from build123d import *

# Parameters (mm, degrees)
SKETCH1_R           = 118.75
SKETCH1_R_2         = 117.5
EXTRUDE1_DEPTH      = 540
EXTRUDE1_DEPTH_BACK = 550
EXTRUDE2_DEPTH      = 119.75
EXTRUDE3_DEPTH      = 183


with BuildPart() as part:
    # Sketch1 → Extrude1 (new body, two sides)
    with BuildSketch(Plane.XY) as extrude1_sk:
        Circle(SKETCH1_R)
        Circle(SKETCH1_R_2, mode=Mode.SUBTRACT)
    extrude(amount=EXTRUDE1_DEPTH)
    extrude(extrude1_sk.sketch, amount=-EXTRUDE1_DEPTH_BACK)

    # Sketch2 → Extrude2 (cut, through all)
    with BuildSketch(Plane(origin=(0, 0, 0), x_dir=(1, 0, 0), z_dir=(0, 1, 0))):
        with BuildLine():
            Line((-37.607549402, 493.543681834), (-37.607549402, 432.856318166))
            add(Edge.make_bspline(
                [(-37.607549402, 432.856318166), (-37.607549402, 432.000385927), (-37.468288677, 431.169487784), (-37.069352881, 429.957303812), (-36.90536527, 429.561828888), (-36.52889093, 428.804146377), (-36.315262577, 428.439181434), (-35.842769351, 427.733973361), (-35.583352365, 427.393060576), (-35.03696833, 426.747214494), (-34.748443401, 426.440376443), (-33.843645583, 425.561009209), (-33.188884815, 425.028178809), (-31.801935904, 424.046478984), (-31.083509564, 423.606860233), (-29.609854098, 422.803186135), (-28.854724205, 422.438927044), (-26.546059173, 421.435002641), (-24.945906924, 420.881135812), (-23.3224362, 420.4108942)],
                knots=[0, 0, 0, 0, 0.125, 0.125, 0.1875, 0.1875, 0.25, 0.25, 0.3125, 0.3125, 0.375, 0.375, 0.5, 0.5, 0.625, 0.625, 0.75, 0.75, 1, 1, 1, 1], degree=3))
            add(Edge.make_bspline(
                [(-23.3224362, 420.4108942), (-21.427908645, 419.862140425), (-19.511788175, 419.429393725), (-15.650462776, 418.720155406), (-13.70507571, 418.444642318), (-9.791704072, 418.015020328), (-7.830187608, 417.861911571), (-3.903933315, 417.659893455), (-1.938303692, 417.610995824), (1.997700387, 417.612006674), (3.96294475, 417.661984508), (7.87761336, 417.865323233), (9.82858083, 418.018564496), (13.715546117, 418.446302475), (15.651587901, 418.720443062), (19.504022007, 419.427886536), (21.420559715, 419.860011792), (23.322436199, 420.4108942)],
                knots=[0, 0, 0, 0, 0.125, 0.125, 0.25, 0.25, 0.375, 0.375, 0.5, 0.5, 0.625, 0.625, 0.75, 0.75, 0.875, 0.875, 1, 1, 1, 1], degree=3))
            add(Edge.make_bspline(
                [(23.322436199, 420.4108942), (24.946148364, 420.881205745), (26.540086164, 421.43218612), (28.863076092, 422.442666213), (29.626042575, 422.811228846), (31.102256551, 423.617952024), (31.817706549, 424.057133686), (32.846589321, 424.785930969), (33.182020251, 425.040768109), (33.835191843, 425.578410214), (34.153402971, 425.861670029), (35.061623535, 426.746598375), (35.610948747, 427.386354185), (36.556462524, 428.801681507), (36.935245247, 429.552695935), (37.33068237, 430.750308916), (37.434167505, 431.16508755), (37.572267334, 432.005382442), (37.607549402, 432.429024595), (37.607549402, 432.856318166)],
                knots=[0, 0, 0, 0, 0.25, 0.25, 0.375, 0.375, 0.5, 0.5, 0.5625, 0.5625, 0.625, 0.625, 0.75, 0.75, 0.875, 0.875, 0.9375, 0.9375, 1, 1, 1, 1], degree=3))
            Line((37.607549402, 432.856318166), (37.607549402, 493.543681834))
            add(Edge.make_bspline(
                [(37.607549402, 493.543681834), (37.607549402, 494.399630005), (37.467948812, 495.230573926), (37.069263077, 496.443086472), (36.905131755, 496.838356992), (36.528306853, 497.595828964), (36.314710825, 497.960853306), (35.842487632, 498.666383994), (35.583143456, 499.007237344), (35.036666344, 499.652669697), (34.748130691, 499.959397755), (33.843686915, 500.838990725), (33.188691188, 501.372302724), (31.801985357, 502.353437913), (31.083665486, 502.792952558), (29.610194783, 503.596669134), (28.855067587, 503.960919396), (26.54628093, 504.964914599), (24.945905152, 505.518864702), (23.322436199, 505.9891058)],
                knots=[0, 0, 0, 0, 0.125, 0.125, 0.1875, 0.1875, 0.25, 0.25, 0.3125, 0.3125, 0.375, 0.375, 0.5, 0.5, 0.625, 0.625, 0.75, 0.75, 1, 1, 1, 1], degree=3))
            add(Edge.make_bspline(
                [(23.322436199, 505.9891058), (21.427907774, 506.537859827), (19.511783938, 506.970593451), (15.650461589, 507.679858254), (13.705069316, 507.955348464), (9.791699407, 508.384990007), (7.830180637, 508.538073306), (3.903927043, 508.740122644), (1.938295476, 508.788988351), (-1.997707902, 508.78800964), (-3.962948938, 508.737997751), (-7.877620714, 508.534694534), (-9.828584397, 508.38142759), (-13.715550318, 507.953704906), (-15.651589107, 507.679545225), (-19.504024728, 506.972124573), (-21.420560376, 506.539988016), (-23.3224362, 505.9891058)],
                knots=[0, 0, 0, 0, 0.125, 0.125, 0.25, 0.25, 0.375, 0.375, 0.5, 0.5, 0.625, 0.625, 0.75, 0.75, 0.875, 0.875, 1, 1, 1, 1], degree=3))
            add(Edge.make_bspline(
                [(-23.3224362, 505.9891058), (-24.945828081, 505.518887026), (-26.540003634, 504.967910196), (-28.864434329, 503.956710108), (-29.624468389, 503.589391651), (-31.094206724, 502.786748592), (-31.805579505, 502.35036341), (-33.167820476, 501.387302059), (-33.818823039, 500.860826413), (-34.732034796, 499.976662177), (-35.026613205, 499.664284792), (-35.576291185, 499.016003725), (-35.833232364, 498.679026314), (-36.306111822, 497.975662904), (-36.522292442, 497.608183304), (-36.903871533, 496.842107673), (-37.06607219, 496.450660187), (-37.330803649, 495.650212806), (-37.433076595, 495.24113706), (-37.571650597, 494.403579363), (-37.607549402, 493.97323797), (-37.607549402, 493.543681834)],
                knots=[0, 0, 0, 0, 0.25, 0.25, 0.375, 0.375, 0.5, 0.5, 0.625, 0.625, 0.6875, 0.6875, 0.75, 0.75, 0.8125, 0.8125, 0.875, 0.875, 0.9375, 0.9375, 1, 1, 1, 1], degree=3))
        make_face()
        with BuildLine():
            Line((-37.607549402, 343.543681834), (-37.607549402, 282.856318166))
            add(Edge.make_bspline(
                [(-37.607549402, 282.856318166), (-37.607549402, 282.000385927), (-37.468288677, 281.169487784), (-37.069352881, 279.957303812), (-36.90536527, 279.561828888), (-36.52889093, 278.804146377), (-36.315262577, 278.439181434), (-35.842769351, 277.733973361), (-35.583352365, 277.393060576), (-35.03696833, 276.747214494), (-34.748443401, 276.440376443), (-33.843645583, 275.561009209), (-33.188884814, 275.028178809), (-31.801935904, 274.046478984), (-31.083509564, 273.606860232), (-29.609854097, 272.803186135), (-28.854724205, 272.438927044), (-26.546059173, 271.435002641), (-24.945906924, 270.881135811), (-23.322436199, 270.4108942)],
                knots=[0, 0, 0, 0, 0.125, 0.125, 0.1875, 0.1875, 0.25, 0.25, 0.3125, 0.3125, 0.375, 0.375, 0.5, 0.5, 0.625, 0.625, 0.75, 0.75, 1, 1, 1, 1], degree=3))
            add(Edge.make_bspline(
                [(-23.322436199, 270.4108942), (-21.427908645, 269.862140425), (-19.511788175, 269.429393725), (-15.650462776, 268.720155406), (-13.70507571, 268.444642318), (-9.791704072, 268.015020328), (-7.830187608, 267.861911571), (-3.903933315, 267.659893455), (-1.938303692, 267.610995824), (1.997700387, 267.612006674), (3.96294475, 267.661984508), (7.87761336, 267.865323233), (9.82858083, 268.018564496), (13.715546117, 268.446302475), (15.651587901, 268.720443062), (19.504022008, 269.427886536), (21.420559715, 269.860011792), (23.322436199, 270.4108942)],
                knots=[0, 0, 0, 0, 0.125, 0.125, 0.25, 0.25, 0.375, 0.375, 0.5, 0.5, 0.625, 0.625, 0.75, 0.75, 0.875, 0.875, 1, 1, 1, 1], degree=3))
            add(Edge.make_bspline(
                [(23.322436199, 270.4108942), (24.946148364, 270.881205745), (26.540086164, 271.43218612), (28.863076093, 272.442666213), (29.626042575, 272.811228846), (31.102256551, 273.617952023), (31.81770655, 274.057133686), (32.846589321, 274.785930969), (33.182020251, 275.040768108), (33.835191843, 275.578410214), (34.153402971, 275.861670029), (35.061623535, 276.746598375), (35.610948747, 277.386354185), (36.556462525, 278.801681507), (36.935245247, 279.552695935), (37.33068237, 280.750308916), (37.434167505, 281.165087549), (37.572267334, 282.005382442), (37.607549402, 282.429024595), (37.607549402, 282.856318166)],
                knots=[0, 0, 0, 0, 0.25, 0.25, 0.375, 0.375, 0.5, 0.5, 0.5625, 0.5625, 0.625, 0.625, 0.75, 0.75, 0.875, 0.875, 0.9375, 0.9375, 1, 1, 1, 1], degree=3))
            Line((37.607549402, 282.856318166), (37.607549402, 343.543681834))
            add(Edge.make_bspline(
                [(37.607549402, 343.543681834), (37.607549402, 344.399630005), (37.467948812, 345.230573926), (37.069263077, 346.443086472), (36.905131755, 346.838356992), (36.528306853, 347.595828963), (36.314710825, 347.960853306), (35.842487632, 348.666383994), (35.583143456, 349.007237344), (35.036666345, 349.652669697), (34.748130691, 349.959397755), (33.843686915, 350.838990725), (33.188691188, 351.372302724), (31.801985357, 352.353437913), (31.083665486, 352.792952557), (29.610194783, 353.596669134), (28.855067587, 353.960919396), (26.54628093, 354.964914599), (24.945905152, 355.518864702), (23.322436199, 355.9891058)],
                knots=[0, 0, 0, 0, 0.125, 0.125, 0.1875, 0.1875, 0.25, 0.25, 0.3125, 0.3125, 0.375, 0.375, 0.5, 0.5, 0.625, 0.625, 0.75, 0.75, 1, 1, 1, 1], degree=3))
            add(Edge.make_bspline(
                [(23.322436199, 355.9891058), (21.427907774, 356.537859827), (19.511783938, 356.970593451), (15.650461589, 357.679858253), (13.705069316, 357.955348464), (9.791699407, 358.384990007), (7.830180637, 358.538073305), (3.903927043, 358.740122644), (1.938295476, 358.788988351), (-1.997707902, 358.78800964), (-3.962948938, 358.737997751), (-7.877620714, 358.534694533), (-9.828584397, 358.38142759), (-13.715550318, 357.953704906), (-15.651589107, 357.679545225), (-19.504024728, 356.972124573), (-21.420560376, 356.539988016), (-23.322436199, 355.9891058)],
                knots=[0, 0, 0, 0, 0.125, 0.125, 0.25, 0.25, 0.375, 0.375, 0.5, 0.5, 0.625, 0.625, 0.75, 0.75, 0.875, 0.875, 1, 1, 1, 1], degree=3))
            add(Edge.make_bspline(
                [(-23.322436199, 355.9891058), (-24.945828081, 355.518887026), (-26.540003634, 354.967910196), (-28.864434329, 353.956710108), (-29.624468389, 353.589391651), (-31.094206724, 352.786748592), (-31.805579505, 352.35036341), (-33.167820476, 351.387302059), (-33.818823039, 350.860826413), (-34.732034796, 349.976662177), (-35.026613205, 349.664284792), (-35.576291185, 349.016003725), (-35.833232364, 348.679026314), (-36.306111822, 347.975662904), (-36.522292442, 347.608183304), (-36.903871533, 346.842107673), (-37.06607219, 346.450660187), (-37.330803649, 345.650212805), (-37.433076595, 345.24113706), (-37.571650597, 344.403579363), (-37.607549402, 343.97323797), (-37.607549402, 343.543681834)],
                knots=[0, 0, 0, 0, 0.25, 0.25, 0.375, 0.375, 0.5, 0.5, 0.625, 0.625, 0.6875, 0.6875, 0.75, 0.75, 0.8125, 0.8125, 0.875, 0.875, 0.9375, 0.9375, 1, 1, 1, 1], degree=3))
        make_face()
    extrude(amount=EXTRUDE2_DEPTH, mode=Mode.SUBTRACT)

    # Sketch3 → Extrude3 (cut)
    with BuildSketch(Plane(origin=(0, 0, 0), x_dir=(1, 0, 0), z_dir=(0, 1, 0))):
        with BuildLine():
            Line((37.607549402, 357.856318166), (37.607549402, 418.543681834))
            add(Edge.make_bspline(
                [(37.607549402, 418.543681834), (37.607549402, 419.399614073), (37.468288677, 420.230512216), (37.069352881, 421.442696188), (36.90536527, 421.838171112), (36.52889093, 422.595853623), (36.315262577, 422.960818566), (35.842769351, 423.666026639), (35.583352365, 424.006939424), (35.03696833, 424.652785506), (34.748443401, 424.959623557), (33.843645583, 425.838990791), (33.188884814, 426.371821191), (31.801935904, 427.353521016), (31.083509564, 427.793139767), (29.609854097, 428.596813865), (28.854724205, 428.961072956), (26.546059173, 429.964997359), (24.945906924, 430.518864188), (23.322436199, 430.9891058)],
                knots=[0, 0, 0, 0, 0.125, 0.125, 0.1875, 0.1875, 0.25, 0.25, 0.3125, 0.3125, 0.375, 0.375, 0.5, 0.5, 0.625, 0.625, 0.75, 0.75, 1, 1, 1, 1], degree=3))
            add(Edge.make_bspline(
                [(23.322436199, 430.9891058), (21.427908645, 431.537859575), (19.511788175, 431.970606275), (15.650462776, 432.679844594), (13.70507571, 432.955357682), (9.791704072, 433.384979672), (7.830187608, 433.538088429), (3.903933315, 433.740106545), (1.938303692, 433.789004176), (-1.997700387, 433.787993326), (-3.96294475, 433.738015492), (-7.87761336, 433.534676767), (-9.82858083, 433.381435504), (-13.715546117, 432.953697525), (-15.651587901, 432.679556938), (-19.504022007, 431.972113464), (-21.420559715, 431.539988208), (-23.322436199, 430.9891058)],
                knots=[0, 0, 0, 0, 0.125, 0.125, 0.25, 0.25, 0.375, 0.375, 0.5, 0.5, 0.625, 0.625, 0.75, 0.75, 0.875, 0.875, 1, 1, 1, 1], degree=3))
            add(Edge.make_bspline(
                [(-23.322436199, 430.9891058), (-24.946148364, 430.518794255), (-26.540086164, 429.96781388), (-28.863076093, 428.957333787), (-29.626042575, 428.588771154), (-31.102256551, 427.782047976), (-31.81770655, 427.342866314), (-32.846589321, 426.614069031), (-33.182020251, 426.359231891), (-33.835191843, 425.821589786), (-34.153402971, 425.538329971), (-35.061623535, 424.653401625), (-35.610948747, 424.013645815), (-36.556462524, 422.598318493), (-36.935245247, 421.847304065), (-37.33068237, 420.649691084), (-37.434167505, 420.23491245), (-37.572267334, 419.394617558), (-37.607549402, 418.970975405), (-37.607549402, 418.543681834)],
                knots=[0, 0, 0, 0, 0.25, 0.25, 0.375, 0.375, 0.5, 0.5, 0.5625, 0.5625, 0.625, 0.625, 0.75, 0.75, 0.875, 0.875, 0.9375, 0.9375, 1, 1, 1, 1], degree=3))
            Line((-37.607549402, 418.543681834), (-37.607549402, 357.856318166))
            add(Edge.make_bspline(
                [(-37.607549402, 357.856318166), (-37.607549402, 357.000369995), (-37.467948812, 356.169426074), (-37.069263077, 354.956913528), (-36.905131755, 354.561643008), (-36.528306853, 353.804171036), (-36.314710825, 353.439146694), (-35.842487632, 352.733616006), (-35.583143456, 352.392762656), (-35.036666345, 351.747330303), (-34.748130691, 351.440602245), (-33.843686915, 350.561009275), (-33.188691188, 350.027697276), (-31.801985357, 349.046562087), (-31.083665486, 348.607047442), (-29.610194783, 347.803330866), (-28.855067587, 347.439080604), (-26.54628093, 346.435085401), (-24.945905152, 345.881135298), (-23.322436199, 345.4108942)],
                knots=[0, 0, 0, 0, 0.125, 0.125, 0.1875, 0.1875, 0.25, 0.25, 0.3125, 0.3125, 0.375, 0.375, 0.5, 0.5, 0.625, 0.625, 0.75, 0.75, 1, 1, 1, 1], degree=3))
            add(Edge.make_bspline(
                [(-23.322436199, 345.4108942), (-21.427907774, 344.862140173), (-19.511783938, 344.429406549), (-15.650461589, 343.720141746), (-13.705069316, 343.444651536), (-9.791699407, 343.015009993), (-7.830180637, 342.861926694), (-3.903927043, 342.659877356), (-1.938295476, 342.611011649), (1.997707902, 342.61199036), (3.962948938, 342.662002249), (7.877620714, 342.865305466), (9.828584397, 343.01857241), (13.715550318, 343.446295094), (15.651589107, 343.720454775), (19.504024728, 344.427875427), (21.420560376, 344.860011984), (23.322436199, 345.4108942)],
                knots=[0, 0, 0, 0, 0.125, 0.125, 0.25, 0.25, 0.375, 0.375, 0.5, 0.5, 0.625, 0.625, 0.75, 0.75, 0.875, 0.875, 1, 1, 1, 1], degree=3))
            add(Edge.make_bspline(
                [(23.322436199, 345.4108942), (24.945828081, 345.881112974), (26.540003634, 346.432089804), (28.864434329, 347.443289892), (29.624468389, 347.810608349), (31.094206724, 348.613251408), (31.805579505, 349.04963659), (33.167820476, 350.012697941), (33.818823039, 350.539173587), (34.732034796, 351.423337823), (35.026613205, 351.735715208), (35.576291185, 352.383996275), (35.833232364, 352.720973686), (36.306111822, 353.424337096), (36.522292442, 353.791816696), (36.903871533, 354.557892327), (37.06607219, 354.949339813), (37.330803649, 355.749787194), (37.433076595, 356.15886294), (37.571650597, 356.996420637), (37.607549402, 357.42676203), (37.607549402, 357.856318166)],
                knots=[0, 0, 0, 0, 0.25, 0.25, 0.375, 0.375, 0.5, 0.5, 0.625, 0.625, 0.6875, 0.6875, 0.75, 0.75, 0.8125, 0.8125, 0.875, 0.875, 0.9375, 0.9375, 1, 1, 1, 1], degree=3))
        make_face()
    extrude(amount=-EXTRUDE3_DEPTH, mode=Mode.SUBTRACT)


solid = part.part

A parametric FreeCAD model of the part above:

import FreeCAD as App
import Part
import Sketcher

V = App.Vector

doc = App.newDocument("Part")
body = doc.addObject("PartDesign::Body", "Body")

sketch1 = body.newObject("Sketcher::SketchObject", "Sketch")
sketch1.AttachmentSupport = (doc.getObject("XY_Plane"), [""])
sketch1.MapMode = "FlatFace"
sketch1.addGeometry([
    Part.Circle(V(0, 0, 0), V(0, 0, 1), 119),
    Part.Circle(V(0, 0, 0), V(0, 0, 1), 118),
], False)
sketch1.addConstraint([
    Sketcher.Constraint("Coincident", 0, 3, -1, 1),
    Sketcher.Constraint("Coincident", 1, 3, -1, 1),
    Sketcher.Constraint("Diameter", 1, 235.0),
    Sketcher.Constraint("Diameter", 0, 237.5),
])
pad1 = body.newObject("PartDesign::Pad", "Pad")
pad1.Profile = sketch1
pad1.Type = "TwoLengths"
pad1.Length = 540
pad1.Length2 = 550

sketch2 = body.newObject("Sketcher::SketchObject", "Sketch001")
sketch2.AttachmentSupport = (doc.getObject("XZ_Plane"), [""])
sketch2.MapMode = "FlatFace"
sketch2.addGeometry([
    Part.LineSegment(V(-37.607549, -493.543682, 0), V(-37.607549, -432.856318, 0)),
    Part.BSplineCurve([V(-37.607549, -432.856318, 0), V(-37.607549, -432.000386, 0), V(-37.468289, -431.169488, 0), V(-37.069353, -429.957304, 0), V(-36.905365, -429.561829, 0), V(-36.528891, -428.804146, 0), V(-36.315263, -428.439181, 0), V(-35.842769, -427.733973, 0), V(-35.583352, -427.393061, 0), V(-35.036968, -426.747214, 0), V(-34.748443, -426.440376, 0), V(-33.843646, -425.561009, 0), V(-33.188885, -425.028179, 0), V(-31.801936, -424.046479, 0), V(-31.08351, -423.60686, 0), V(-29.609854, -422.803186, 0), V(-28.854724, -422.438927, 0), V(-26.546059, -421.435003, 0), V(-24.945907, -420.881136, 0), V(-23.322436, -420.410894, 0)], [4, 2, 2, 2, 2, 2, 2, 2, 2, 4], [0, 0.125, 0.1875, 0.25, 0.3125, 0.375, 0.5, 0.625, 0.75, 1], False, 3, [1, 1, 1, 1, 1, 1, 1, 1, 1, 1, 1, 1, 1, 1, 1, 1, 1, 1, 1, 1], False),
    Part.BSplineCurve([V(-23.322436, -420.410894, 0), V(-21.427909, -419.86214, 0), V(-19.511788, -419.429394, 0), V(-15.650463, -418.720155, 0), V(-13.705076, -418.444642, 0), V(-9.791704, -418.01502, 0), V(-7.830188, -417.861912, 0), V(-3.903933, -417.659893, 0), V(-1.938304, -417.610996, 0), V(1.9977, -417.612007, 0), V(3.962945, -417.661985, 0), V(7.877613, -417.865323, 0), V(9.828581, -418.018564, 0), V(13.715546, -418.446302, 0), V(15.651588, -418.720443, 0), V(19.504022, -419.427887, 0), V(21.42056, -419.860012, 0), V(23.322436, -420.410894, 0)], [4, 2, 2, 2, 2, 2, 2, 2, 4], [0, 0.125, 0.25, 0.375, 0.5, 0.625, 0.75, 0.875, 1], False, 3, [1, 1, 1, 1, 1, 1, 1, 1, 1, 1, 1, 1, 1, 1, 1, 1, 1, 1], False),
    Part.BSplineCurve([V(23.322436, -420.410894, 0), V(24.946148, -420.881206, 0), V(26.540086, -421.432186, 0), V(28.863076, -422.442666, 0), V(29.626043, -422.811229, 0), V(31.102257, -423.617952, 0), V(31.817707, -424.057134, 0), V(32.846589, -424.785931, 0), V(33.18202, -425.040768, 0), V(33.835192, -425.57841, 0), V(34.153403, -425.86167, 0), V(35.061624, -426.746598, 0), V(35.610949, -427.386354, 0), V(36.556463, -428.801682, 0), V(36.935245, -429.552696, 0), V(37.330682, -430.750309, 0), V(37.434168, -431.165088, 0), V(37.572267, -432.005382, 0), V(37.607549, -432.429025, 0), V(37.607549, -432.856318, 0)], [4, 2, 2, 2, 2, 2, 2, 2, 2, 4], [0, 0.25, 0.375, 0.5, 0.5625, 0.625, 0.75, 0.875, 0.9375, 1], False, 3, [1, 1, 1, 1, 1, 1, 1, 1, 1, 1, 1, 1, 1, 1, 1, 1, 1, 1, 1, 1], False),
    Part.LineSegment(V(37.607549, -432.856318, 0), V(37.607549, -493.543682, 0)),
    Part.BSplineCurve([V(37.607549, -493.543682, 0), V(37.607549, -494.39963, 0), V(37.467949, -495.230574, 0), V(37.069263, -496.443086, 0), V(36.905132, -496.838357, 0), V(36.528307, -497.595829, 0), V(36.314711, -497.960853, 0), V(35.842488, -498.666384, 0), V(35.583143, -499.007237, 0), V(35.036666, -499.65267, 0), V(34.748131, -499.959398, 0), V(33.843687, -500.838991, 0), V(33.188691, -501.372303, 0), V(31.801985, -502.353438, 0), V(31.083665, -502.792953, 0), V(29.610195, -503.596669, 0), V(28.855068, -503.960919, 0), V(26.546281, -504.964915, 0), V(24.945905, -505.518865, 0), V(23.322436, -505.989106, 0)], [4, 2, 2, 2, 2, 2, 2, 2, 2, 4], [0, 0.125, 0.1875, 0.25, 0.3125, 0.375, 0.5, 0.625, 0.75, 1], False, 3, [1, 1, 1, 1, 1, 1, 1, 1, 1, 1, 1, 1, 1, 1, 1, 1, 1, 1, 1, 1], False),
    Part.BSplineCurve([V(23.322436, -505.989106, 0), V(21.427908, -506.53786, 0), V(19.511784, -506.970593, 0), V(15.650462, -507.679858, 0), V(13.705069, -507.955348, 0), V(9.791699, -508.38499, 0), V(7.830181, -508.538073, 0), V(3.903927, -508.740123, 0), V(1.938295, -508.788988, 0), V(-1.997708, -508.78801, 0), V(-3.962949, -508.737998, 0), V(-7.877621, -508.534695, 0), V(-9.828584, -508.381428, 0), V(-13.71555, -507.953705, 0), V(-15.651589, -507.679545, 0), V(-19.504025, -506.972125, 0), V(-21.42056, -506.539988, 0), V(-23.322436, -505.989106, 0)], [4, 2, 2, 2, 2, 2, 2, 2, 4], [0, 0.125, 0.25, 0.375, 0.5, 0.625, 0.75, 0.875, 1], False, 3, [1, 1, 1, 1, 1, 1, 1, 1, 1, 1, 1, 1, 1, 1, 1, 1, 1, 1], False),
    Part.BSplineCurve([V(-23.322436, -505.989106, 0), V(-24.945828, -505.518887, 0), V(-26.540004, -504.96791, 0), V(-28.864434, -503.95671, 0), V(-29.624468, -503.589392, 0), V(-31.094207, -502.786749, 0), V(-31.80558, -502.350363, 0), V(-33.16782, -501.387302, 0), V(-33.818823, -500.860826, 0), V(-34.732035, -499.976662, 0), V(-35.026613, -499.664285, 0), V(-35.576291, -499.016004, 0), V(-35.833232, -498.679026, 0), V(-36.306112, -497.975663, 0), V(-36.522292, -497.608183, 0), V(-36.903872, -496.842108, 0), V(-37.066072, -496.45066, 0), V(-37.330804, -495.650213, 0), V(-37.433077, -495.241137, 0), V(-37.571651, -494.403579, 0), V(-37.607549, -493.973238, 0), V(-37.607549, -493.543682, 0)], [4, 2, 2, 2, 2, 2, 2, 2, 2, 2, 4], [0, 0.25, 0.375, 0.5, 0.625, 0.6875, 0.75, 0.8125, 0.875, 0.9375, 1], False, 3, [1, 1, 1, 1, 1, 1, 1, 1, 1, 1, 1, 1, 1, 1, 1, 1, 1, 1, 1, 1, 1, 1], False),
    Part.LineSegment(V(-37.607549, -343.543682, 0), V(-37.607549, -282.856318, 0)),
    Part.BSplineCurve([V(-37.607549, -282.856318, 0), V(-37.607549, -282.000386, 0), V(-37.468289, -281.169488, 0), V(-37.069353, -279.957304, 0), V(-36.905365, -279.561829, 0), V(-36.528891, -278.804146, 0), V(-36.315263, -278.439181, 0), V(-35.842769, -277.733973, 0), V(-35.583352, -277.393061, 0), V(-35.036968, -276.747214, 0), V(-34.748443, -276.440376, 0), V(-33.843646, -275.561009, 0), V(-33.188885, -275.028179, 0), V(-31.801936, -274.046479, 0), V(-31.08351, -273.60686, 0), V(-29.609854, -272.803186, 0), V(-28.854724, -272.438927, 0), V(-26.546059, -271.435003, 0), V(-24.945907, -270.881136, 0), V(-23.322436, -270.410894, 0)], [4, 2, 2, 2, 2, 2, 2, 2, 2, 4], [0, 0.125, 0.1875, 0.25, 0.3125, 0.375, 0.5, 0.625, 0.75, 1], False, 3, [1, 1, 1, 1, 1, 1, 1, 1, 1, 1, 1, 1, 1, 1, 1, 1, 1, 1, 1, 1], False),
    Part.BSplineCurve([V(-23.322436, -270.410894, 0), V(-21.427909, -269.86214, 0), V(-19.511788, -269.429394, 0), V(-15.650463, -268.720155, 0), V(-13.705076, -268.444642, 0), V(-9.791704, -268.01502, 0), V(-7.830188, -267.861912, 0), V(-3.903933, -267.659893, 0), V(-1.938304, -267.610996, 0), V(1.9977, -267.612007, 0), V(3.962945, -267.661985, 0), V(7.877613, -267.865323, 0), V(9.828581, -268.018564, 0), V(13.715546, -268.446302, 0), V(15.651588, -268.720443, 0), V(19.504022, -269.427887, 0), V(21.42056, -269.860012, 0), V(23.322436, -270.410894, 0)], [4, 2, 2, 2, 2, 2, 2, 2, 4], [0, 0.125, 0.25, 0.375, 0.5, 0.625, 0.75, 0.875, 1], False, 3, [1, 1, 1, 1, 1, 1, 1, 1, 1, 1, 1, 1, 1, 1, 1, 1, 1, 1], False),
    Part.BSplineCurve([V(23.322436, -270.410894, 0), V(24.946148, -270.881206, 0), V(26.540086, -271.432186, 0), V(28.863076, -272.442666, 0), V(29.626043, -272.811229, 0), V(31.102257, -273.617952, 0), V(31.817707, -274.057134, 0), V(32.846589, -274.785931, 0), V(33.18202, -275.040768, 0), V(33.835192, -275.57841, 0), V(34.153403, -275.86167, 0), V(35.061624, -276.746598, 0), V(35.610949, -277.386354, 0), V(36.556463, -278.801682, 0), V(36.935245, -279.552696, 0), V(37.330682, -280.750309, 0), V(37.434168, -281.165088, 0), V(37.572267, -282.005382, 0), V(37.607549, -282.429025, 0), V(37.607549, -282.856318, 0)], [4, 2, 2, 2, 2, 2, 2, 2, 2, 4], [0, 0.25, 0.375, 0.5, 0.5625, 0.625, 0.75, 0.875, 0.9375, 1], False, 3, [1, 1, 1, 1, 1, 1, 1, 1, 1, 1, 1, 1, 1, 1, 1, 1, 1, 1, 1, 1], False),
    Part.LineSegment(V(37.607549, -282.856318, 0), V(37.607549, -343.543682, 0)),
    Part.BSplineCurve([V(37.607549, -343.543682, 0), V(37.607549, -344.39963, 0), V(37.467949, -345.230574, 0), V(37.069263, -346.443086, 0), V(36.905132, -346.838357, 0), V(36.528307, -347.595829, 0), V(36.314711, -347.960853, 0), V(35.842488, -348.666384, 0), V(35.583143, -349.007237, 0), V(35.036666, -349.65267, 0), V(34.748131, -349.959398, 0), V(33.843687, -350.838991, 0), V(33.188691, -351.372303, 0), V(31.801985, -352.353438, 0), V(31.083665, -352.792953, 0), V(29.610195, -353.596669, 0), V(28.855068, -353.960919, 0), V(26.546281, -354.964915, 0), V(24.945905, -355.518865, 0), V(23.322436, -355.989106, 0)], [4, 2, 2, 2, 2, 2, 2, 2, 2, 4], [0, 0.125, 0.1875, 0.25, 0.3125, 0.375, 0.5, 0.625, 0.75, 1], False, 3, [1, 1, 1, 1, 1, 1, 1, 1, 1, 1, 1, 1, 1, 1, 1, 1, 1, 1, 1, 1], False),
    Part.BSplineCurve([V(23.322436, -355.989106, 0), V(21.427908, -356.53786, 0), V(19.511784, -356.970593, 0), V(15.650462, -357.679858, 0), V(13.705069, -357.955348, 0), V(9.791699, -358.38499, 0), V(7.830181, -358.538073, 0), V(3.903927, -358.740123, 0), V(1.938295, -358.788988, 0), V(-1.997708, -358.78801, 0), V(-3.962949, -358.737998, 0), V(-7.877621, -358.534695, 0), V(-9.828584, -358.381428, 0), V(-13.71555, -357.953705, 0), V(-15.651589, -357.679545, 0), V(-19.504025, -356.972125, 0), V(-21.42056, -356.539988, 0), V(-23.322436, -355.989106, 0)], [4, 2, 2, 2, 2, 2, 2, 2, 4], [0, 0.125, 0.25, 0.375, 0.5, 0.625, 0.75, 0.875, 1], False, 3, [1, 1, 1, 1, 1, 1, 1, 1, 1, 1, 1, 1, 1, 1, 1, 1, 1, 1], False),
    Part.BSplineCurve([V(-23.322436, -355.989106, 0), V(-24.945828, -355.518887, 0), V(-26.540004, -354.96791, 0), V(-28.864434, -353.95671, 0), V(-29.624468, -353.589392, 0), V(-31.094207, -352.786749, 0), V(-31.80558, -352.350363, 0), V(-33.16782, -351.387302, 0), V(-33.818823, -350.860826, 0), V(-34.732035, -349.976662, 0), V(-35.026613, -349.664285, 0), V(-35.576291, -349.016004, 0), V(-35.833232, -348.679026, 0), V(-36.306112, -347.975663, 0), V(-36.522292, -347.608183, 0), V(-36.903872, -346.842108, 0), V(-37.066072, -346.45066, 0), V(-37.330804, -345.650213, 0), V(-37.433077, -345.241137, 0), V(-37.571651, -344.403579, 0), V(-37.607549, -343.973238, 0), V(-37.607549, -343.543682, 0)], [4, 2, 2, 2, 2, 2, 2, 2, 2, 2, 4], [0, 0.25, 0.375, 0.5, 0.625, 0.6875, 0.75, 0.8125, 0.875, 0.9375, 1], False, 3, [1, 1, 1, 1, 1, 1, 1, 1, 1, 1, 1, 1, 1, 1, 1, 1, 1, 1, 1, 1, 1, 1], False),
], False)
sketch2.addConstraint([
    Sketcher.Constraint("Block", 1),
    Sketcher.Constraint("Block", 2),
    Sketcher.Constraint("Block", 3),
    Sketcher.Constraint("Block", 5),
    Sketcher.Constraint("Block", 6),
    Sketcher.Constraint("Block", 7),
    Sketcher.Constraint("Block", 9),
    Sketcher.Constraint("Block", 10),
    Sketcher.Constraint("Block", 11),
    Sketcher.Constraint("Block", 13),
    Sketcher.Constraint("Block", 14),
    Sketcher.Constraint("Block", 15),
    Sketcher.Constraint("Coincident", 0, 2, 1, 1),
    Sketcher.Constraint("Coincident", 3, 2, 4, 1),
    Sketcher.Constraint("Coincident", 4, 2, 5, 1),
    Sketcher.Constraint("Coincident", 7, 2, 0, 1),
    Sketcher.Constraint("Coincident", 8, 2, 9, 1),
    Sketcher.Constraint("Coincident", 11, 2, 12, 1),
    Sketcher.Constraint("Coincident", 12, 2, 13, 1),
    Sketcher.Constraint("Coincident", 15, 2, 8, 1),
])
pocket1 = body.newObject("PartDesign::Pocket", "Pocket")
pocket1.Profile = sketch2
pocket1.Type = "ThroughAll"

sketch3 = body.newObject("Sketcher::SketchObject", "Sketch002")
sketch3.AttachmentSupport = (doc.getObject("XZ_Plane"), [""])
sketch3.MapMode = "FlatFace"
sketch3.addGeometry([
    Part.LineSegment(V(37.607549, -357.856318, 0), V(37.607549, -418.543682, 0)),
    Part.BSplineCurve([V(37.607549, -418.543682, 0), V(37.607549, -419.399614, 0), V(37.468289, -420.230512, 0), V(37.069353, -421.442696, 0), V(36.905365, -421.838171, 0), V(36.528891, -422.595854, 0), V(36.315263, -422.960819, 0), V(35.842769, -423.666027, 0), V(35.583352, -424.006939, 0), V(35.036968, -424.652786, 0), V(34.748443, -424.959624, 0), V(33.843646, -425.838991, 0), V(33.188885, -426.371821, 0), V(31.801936, -427.353521, 0), V(31.08351, -427.79314, 0), V(29.609854, -428.596814, 0), V(28.854724, -428.961073, 0), V(26.546059, -429.964997, 0), V(24.945907, -430.518864, 0), V(23.322436, -430.989106, 0)], [4, 2, 2, 2, 2, 2, 2, 2, 2, 4], [0, 0.125, 0.1875, 0.25, 0.3125, 0.375, 0.5, 0.625, 0.75, 1], False, 3, [1, 1, 1, 1, 1, 1, 1, 1, 1, 1, 1, 1, 1, 1, 1, 1, 1, 1, 1, 1], False),
    Part.BSplineCurve([V(23.322436, -430.989106, 0), V(21.427909, -431.53786, 0), V(19.511788, -431.970606, 0), V(15.650463, -432.679845, 0), V(13.705076, -432.955358, 0), V(9.791704, -433.38498, 0), V(7.830188, -433.538088, 0), V(3.903933, -433.740107, 0), V(1.938304, -433.789004, 0), V(-1.9977, -433.787993, 0), V(-3.962945, -433.738015, 0), V(-7.877613, -433.534677, 0), V(-9.828581, -433.381436, 0), V(-13.715546, -432.953698, 0), V(-15.651588, -432.679557, 0), V(-19.504022, -431.972113, 0), V(-21.42056, -431.539988, 0), V(-23.322436, -430.989106, 0)], [4, 2, 2, 2, 2, 2, 2, 2, 4], [0, 0.125, 0.25, 0.375, 0.5, 0.625, 0.75, 0.875, 1], False, 3, [1, 1, 1, 1, 1, 1, 1, 1, 1, 1, 1, 1, 1, 1, 1, 1, 1, 1], False),
    Part.BSplineCurve([V(-23.322436, -430.989106, 0), V(-24.946148, -430.518794, 0), V(-26.540086, -429.967814, 0), V(-28.863076, -428.957334, 0), V(-29.626043, -428.588771, 0), V(-31.102257, -427.782048, 0), V(-31.817707, -427.342866, 0), V(-32.846589, -426.614069, 0), V(-33.18202, -426.359232, 0), V(-33.835192, -425.82159, 0), V(-34.153403, -425.53833, 0), V(-35.061624, -424.653402, 0), V(-35.610949, -424.013646, 0), V(-36.556463, -422.598318, 0), V(-36.935245, -421.847304, 0), V(-37.330682, -420.649691, 0), V(-37.434168, -420.234912, 0), V(-37.572267, -419.394618, 0), V(-37.607549, -418.970975, 0), V(-37.607549, -418.543682, 0)], [4, 2, 2, 2, 2, 2, 2, 2, 2, 4], [0, 0.25, 0.375, 0.5, 0.5625, 0.625, 0.75, 0.875, 0.9375, 1], False, 3, [1, 1, 1, 1, 1, 1, 1, 1, 1, 1, 1, 1, 1, 1, 1, 1, 1, 1, 1, 1], False),
    Part.LineSegment(V(-37.607549, -418.543682, 0), V(-37.607549, -357.856318, 0)),
    Part.BSplineCurve([V(-37.607549, -357.856318, 0), V(-37.607549, -357.00037, 0), V(-37.467949, -356.169426, 0), V(-37.069263, -354.956914, 0), V(-36.905132, -354.561643, 0), V(-36.528307, -353.804171, 0), V(-36.314711, -353.439147, 0), V(-35.842488, -352.733616, 0), V(-35.583143, -352.392763, 0), V(-35.036666, -351.74733, 0), V(-34.748131, -351.440602, 0), V(-33.843687, -350.561009, 0), V(-33.188691, -350.027697, 0), V(-31.801985, -349.046562, 0), V(-31.083665, -348.607047, 0), V(-29.610195, -347.803331, 0), V(-28.855068, -347.439081, 0), V(-26.546281, -346.435085, 0), V(-24.945905, -345.881135, 0), V(-23.322436, -345.410894, 0)], [4, 2, 2, 2, 2, 2, 2, 2, 2, 4], [0, 0.125, 0.1875, 0.25, 0.3125, 0.375, 0.5, 0.625, 0.75, 1], False, 3, [1, 1, 1, 1, 1, 1, 1, 1, 1, 1, 1, 1, 1, 1, 1, 1, 1, 1, 1, 1], False),
    Part.BSplineCurve([V(-23.322436, -345.410894, 0), V(-21.427908, -344.86214, 0), V(-19.511784, -344.429407, 0), V(-15.650462, -343.720142, 0), V(-13.705069, -343.444652, 0), V(-9.791699, -343.01501, 0), V(-7.830181, -342.861927, 0), V(-3.903927, -342.659877, 0), V(-1.938295, -342.611012, 0), V(1.997708, -342.61199, 0), V(3.962949, -342.662002, 0), V(7.877621, -342.865305, 0), V(9.828584, -343.018572, 0), V(13.71555, -343.446295, 0), V(15.651589, -343.720455, 0), V(19.504025, -344.427875, 0), V(21.42056, -344.860012, 0), V(23.322436, -345.410894, 0)], [4, 2, 2, 2, 2, 2, 2, 2, 4], [0, 0.125, 0.25, 0.375, 0.5, 0.625, 0.75, 0.875, 1], False, 3, [1, 1, 1, 1, 1, 1, 1, 1, 1, 1, 1, 1, 1, 1, 1, 1, 1, 1], False),
    Part.BSplineCurve([V(23.322436, -345.410894, 0), V(24.945828, -345.881113, 0), V(26.540004, -346.43209, 0), V(28.864434, -347.44329, 0), V(29.624468, -347.810608, 0), V(31.094207, -348.613251, 0), V(31.80558, -349.049637, 0), V(33.16782, -350.012698, 0), V(33.818823, -350.539174, 0), V(34.732035, -351.423338, 0), V(35.026613, -351.735715, 0), V(35.576291, -352.383996, 0), V(35.833232, -352.720974, 0), V(36.306112, -353.424337, 0), V(36.522292, -353.791817, 0), V(36.903872, -354.557892, 0), V(37.066072, -354.94934, 0), V(37.330804, -355.749787, 0), V(37.433077, -356.158863, 0), V(37.571651, -356.996421, 0), V(37.607549, -357.426762, 0), V(37.607549, -357.856318, 0)], [4, 2, 2, 2, 2, 2, 2, 2, 2, 2, 4], [0, 0.25, 0.375, 0.5, 0.625, 0.6875, 0.75, 0.8125, 0.875, 0.9375, 1], False, 3, [1, 1, 1, 1, 1, 1, 1, 1, 1, 1, 1, 1, 1, 1, 1, 1, 1, 1, 1, 1, 1, 1], False),
], False)
sketch3.addConstraint([
    Sketcher.Constraint("Block", 1),
    Sketcher.Constraint("Block", 2),
    Sketcher.Constraint("Block", 3),
    Sketcher.Constraint("Block", 5),
    Sketcher.Constraint("Block", 6),
    Sketcher.Constraint("Block", 7),
    Sketcher.Constraint("Coincident", 0, 2, 1, 1),
    Sketcher.Constraint("Coincident", 3, 2, 4, 1),
    Sketcher.Constraint("Coincident", 4, 2, 5, 1),
    Sketcher.Constraint("Coincident", 7, 2, 0, 1),
])
pocket2 = body.newObject("PartDesign::Pocket", "Pocket001")
pocket2.Profile = sketch3
pocket2.Length = 183
pocket2.Reversed = True

doc.recompute()
